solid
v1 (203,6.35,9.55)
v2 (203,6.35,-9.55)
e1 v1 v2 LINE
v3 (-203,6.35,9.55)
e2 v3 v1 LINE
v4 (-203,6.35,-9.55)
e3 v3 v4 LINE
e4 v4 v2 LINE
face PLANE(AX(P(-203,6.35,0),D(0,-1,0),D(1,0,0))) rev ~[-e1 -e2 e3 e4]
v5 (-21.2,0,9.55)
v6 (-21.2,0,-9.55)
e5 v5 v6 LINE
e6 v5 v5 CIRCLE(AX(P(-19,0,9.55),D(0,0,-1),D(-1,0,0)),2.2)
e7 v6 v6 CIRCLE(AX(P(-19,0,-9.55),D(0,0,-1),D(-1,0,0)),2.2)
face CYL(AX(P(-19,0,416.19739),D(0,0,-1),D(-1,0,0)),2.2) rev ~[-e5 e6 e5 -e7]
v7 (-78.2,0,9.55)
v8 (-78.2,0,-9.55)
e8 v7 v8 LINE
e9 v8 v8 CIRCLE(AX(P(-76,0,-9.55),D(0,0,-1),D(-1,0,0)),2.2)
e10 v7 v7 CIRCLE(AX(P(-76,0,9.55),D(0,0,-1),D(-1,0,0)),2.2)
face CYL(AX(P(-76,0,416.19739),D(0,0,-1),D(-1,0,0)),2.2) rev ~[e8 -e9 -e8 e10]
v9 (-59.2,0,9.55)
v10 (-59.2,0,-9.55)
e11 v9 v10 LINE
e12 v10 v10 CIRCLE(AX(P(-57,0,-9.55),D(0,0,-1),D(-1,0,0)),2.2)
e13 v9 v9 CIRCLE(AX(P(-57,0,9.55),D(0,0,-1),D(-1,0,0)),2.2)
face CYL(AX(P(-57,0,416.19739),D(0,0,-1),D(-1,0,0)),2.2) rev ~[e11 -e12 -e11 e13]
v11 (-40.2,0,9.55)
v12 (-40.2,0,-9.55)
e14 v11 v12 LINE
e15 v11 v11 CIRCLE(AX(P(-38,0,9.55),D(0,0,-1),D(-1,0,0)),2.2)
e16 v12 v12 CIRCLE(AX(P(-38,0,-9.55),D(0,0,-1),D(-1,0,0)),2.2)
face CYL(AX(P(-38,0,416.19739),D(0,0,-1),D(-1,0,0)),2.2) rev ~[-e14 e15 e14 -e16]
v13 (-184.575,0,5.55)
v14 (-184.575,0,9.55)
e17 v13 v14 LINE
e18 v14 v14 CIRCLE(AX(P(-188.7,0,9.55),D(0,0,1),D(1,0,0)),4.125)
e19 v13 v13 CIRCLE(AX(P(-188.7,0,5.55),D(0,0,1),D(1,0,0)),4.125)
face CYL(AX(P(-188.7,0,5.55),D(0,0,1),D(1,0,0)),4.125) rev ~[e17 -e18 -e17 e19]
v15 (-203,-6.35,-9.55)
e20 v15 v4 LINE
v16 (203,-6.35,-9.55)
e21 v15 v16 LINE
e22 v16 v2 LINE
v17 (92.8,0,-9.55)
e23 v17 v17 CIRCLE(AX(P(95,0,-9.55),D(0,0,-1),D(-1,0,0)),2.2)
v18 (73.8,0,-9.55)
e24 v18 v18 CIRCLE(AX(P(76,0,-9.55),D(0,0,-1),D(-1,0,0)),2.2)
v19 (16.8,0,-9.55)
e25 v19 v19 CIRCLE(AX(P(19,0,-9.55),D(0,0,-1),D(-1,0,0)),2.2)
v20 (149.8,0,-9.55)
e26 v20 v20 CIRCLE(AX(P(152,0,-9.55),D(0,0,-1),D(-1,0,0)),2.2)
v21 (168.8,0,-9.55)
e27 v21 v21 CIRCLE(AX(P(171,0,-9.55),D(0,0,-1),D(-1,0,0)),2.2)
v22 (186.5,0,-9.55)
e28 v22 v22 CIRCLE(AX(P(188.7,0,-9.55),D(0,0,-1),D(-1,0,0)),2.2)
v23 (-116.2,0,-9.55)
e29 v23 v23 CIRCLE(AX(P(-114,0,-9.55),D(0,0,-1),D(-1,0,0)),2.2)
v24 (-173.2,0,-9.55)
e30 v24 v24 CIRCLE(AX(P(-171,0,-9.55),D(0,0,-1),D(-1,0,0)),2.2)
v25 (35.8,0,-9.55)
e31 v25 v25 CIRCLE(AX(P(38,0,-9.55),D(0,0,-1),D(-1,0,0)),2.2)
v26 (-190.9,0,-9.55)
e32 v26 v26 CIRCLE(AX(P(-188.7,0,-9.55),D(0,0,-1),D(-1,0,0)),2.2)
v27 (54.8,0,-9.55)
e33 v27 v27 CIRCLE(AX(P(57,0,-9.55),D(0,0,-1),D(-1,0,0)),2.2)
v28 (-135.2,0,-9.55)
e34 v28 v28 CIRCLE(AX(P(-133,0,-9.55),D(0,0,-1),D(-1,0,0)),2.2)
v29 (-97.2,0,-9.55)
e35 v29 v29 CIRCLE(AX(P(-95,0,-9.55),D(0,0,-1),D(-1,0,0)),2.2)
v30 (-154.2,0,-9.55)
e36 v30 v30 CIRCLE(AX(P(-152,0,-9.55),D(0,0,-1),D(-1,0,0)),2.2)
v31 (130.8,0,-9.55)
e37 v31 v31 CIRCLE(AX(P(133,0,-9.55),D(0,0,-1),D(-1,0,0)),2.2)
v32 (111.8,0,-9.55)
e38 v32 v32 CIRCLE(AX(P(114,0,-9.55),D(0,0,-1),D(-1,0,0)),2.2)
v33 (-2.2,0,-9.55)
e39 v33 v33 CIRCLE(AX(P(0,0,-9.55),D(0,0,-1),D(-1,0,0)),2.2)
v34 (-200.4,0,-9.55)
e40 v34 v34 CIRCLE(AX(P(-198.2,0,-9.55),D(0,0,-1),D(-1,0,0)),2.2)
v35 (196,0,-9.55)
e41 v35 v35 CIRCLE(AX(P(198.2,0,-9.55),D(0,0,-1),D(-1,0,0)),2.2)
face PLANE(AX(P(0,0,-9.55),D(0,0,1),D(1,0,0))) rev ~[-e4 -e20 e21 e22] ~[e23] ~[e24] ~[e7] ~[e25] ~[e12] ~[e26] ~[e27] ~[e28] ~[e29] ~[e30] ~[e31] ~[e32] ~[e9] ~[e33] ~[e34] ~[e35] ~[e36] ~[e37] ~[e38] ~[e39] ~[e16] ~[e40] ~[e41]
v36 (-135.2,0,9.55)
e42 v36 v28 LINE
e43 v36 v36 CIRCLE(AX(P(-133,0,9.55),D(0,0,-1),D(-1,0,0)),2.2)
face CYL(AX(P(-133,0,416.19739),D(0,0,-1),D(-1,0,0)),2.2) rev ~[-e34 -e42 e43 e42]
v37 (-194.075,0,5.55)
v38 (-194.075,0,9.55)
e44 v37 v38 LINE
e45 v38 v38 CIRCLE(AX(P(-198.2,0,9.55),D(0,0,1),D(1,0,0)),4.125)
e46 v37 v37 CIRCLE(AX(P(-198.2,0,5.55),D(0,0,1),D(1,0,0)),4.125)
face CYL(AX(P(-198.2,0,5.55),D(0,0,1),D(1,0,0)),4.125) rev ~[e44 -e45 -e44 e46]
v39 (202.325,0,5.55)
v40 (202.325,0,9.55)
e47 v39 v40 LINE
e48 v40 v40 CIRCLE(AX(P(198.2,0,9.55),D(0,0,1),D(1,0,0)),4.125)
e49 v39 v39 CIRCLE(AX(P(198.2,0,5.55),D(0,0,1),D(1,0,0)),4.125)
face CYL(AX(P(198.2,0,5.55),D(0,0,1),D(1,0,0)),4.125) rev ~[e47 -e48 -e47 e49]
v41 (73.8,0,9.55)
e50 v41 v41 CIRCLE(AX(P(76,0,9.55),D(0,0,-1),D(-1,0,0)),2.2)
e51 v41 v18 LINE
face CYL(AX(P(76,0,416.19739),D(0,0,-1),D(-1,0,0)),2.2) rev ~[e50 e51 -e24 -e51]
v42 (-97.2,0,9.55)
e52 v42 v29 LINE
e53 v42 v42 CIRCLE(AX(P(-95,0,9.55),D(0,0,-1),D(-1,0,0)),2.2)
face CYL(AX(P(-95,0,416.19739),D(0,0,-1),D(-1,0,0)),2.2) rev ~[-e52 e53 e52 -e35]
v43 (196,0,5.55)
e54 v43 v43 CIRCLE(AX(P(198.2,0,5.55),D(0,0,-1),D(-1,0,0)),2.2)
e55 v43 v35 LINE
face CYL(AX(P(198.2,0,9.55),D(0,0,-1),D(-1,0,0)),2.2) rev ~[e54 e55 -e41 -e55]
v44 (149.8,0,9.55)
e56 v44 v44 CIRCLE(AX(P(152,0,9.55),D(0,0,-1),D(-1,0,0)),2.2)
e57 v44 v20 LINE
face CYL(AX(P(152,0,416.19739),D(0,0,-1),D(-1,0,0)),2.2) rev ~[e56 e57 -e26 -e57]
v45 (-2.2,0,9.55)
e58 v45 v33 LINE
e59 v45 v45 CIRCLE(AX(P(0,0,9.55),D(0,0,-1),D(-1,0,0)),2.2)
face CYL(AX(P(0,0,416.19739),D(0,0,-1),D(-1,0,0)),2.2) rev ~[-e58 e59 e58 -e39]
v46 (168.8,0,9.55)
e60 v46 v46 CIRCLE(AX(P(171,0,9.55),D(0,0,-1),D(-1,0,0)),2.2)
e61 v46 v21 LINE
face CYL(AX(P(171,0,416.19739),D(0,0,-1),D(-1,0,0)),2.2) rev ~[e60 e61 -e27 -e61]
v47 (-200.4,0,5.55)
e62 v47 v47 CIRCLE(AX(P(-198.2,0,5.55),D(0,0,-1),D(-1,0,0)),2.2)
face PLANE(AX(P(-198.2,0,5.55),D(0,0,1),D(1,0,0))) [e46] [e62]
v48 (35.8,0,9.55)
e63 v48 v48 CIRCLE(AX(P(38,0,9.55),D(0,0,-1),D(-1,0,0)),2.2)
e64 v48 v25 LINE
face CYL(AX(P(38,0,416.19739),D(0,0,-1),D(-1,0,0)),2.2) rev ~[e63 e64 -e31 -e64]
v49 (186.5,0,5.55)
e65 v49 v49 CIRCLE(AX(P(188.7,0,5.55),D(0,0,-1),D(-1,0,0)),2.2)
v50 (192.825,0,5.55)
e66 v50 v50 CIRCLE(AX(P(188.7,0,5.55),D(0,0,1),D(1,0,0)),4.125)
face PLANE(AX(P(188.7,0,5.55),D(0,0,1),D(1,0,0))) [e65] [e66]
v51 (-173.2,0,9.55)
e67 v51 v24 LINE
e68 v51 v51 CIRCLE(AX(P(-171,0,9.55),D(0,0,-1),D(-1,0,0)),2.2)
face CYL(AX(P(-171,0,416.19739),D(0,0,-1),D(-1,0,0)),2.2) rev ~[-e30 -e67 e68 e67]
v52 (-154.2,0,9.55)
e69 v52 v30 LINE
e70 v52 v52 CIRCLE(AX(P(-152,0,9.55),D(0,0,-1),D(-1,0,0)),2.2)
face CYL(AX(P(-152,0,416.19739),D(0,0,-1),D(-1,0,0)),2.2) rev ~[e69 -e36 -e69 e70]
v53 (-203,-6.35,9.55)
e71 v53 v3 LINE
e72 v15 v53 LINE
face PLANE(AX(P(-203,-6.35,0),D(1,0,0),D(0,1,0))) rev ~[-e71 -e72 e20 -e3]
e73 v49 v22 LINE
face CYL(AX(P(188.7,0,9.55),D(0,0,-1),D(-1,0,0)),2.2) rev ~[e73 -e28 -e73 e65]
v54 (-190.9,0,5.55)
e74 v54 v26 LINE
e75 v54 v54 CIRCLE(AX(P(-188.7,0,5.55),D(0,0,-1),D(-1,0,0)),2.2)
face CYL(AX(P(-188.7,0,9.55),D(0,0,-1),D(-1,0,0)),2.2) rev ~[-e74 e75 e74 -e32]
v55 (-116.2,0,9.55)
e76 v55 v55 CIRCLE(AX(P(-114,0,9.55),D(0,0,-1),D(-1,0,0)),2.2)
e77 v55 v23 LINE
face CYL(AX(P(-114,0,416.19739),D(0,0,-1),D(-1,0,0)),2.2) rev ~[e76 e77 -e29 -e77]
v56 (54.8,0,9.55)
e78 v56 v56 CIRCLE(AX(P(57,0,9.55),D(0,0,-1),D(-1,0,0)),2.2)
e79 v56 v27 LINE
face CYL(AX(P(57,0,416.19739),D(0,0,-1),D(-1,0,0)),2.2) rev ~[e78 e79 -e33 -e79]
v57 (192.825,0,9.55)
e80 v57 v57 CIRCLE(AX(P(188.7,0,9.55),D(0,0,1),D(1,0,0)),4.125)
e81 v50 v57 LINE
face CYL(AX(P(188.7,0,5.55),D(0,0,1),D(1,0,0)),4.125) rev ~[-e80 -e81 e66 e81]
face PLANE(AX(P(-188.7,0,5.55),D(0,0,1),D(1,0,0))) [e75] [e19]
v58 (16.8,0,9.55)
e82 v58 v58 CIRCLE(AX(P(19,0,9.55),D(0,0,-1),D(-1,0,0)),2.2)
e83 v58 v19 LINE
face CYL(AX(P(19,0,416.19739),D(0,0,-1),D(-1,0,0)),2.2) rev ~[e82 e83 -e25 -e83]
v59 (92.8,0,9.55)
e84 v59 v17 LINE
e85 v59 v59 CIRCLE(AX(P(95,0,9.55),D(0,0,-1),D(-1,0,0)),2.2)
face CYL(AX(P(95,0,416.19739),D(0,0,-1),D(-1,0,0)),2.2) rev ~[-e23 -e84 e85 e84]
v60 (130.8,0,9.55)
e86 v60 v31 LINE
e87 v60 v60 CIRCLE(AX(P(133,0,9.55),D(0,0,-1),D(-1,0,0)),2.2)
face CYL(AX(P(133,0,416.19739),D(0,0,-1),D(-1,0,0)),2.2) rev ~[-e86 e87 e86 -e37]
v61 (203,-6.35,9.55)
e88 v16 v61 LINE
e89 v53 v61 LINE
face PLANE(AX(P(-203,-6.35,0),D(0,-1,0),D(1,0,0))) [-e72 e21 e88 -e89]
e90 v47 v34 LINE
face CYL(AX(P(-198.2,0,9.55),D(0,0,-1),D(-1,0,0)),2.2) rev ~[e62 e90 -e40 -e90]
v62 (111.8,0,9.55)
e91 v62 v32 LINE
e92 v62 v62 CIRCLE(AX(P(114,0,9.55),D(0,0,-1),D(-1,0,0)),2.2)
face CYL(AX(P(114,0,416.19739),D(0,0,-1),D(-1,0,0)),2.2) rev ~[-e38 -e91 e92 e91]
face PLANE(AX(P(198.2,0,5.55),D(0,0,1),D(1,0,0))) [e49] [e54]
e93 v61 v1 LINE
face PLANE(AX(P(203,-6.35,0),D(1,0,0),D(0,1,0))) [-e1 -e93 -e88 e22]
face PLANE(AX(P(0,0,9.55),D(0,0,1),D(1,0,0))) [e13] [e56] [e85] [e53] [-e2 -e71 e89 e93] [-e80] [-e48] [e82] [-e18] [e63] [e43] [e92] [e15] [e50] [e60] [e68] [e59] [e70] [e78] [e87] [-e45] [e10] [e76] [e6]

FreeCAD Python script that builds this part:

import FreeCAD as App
import Part
import Sketcher
Q = App.Units.Quantity

doc = App.newDocument("Part")
body = doc.addObject("PartDesign::Body", "Body")

# Sketch on XY plane
sketch1 = body.newObject("Sketcher::SketchObject", "Sketch")
sketch1.AttachmentSupport = (doc.getObject("XY_Plane"), [""])
sketch1.MapMode = "FlatFace"
sketch1.addGeometry([
    Part.LineSegment(App.Vector(-203, 6.35, 0), App.Vector(-203, -6.35, 0)),
    Part.LineSegment(App.Vector(-203, -6.35, 0), App.Vector(203, -6.35, 0)),
    Part.LineSegment(App.Vector(203, -6.35, 0), App.Vector(203, 6.35, 0)),
    Part.LineSegment(App.Vector(203, 6.35, 0), App.Vector(-203, 6.35, 0)),
], False)
sketch1.addConstraint([
    Sketcher.Constraint("Coincident", 0, 2, 1, 1),
    Sketcher.Constraint("Coincident", 1, 2, 2, 1),
    Sketcher.Constraint("Coincident", 2, 2, 3, 1),
    Sketcher.Constraint("Coincident", 3, 2, 0, 1),
    Sketcher.Constraint("Vertical", 0),
    Sketcher.Constraint("Horizontal", 1),
    Sketcher.Constraint("Vertical", 2),
    Sketcher.Constraint("Horizontal", 3),
    Sketcher.Constraint("Symmetric", 0, 2, 2, 2, -1, 1),
    Sketcher.Constraint("DistanceX", 1, 1, 1, 2, Q("406 mm")),
    Sketcher.Constraint("DistanceY", 0, 2, 0, 1, Q("12.7 mm")),
])
pad1 = body.newObject("PartDesign::Pad", "Pad")
pad1.Profile = sketch1
pad1.Length = 19.1
pad1.Midplane = True

# Sketch on XY plane
sketch2 = body.newObject("Sketcher::SketchObject", "Sketch001")
sketch2.AttachmentSupport = (doc.getObject("XY_Plane"), [""])
sketch2.MapMode = "FlatFace"
sketch2.AttachmentOffset = App.Placement(App.Vector(0, 0, 9.55), App.Rotation())
sketch2.addGeometry([
    Part.Circle(App.Vector(-198.2, 0, 0), App.Vector(0, 0, 1), 2.2),
    Part.Circle(App.Vector(-188.7, 0, 0), App.Vector(0, 0, 1), 2.2),
    Part.Circle(App.Vector(188.7, 0, 0), App.Vector(0, 0, 1), 2.2),
    Part.Circle(App.Vector(198.2, 0, 0), App.Vector(0, 0, 1), 2.2),
], False)
sketch2.addConstraint([
    Sketcher.Constraint("Equal", 0, 1),
    Sketcher.Constraint("Equal", 1, 2),
    Sketcher.Constraint("Equal", 2, 3),
    Sketcher.Constraint("Symmetric", 1, 3, 2, 3, -1, 1),
    Sketcher.Constraint("Symmetric", 0, 3, 3, 3, -1, 1),
    Sketcher.Constraint("PointOnObject", 0, 3, -1),
    Sketcher.Constraint("PointOnObject", 1, 3, -1),
    Sketcher.Constraint("Diameter", 0, Q("4.4 mm")),
    Sketcher.Constraint("DistanceX", 0, 3, -1, 1, Q("198.2 mm")),
    Sketcher.Constraint("DistanceX", 1, 3, -1, 1, Q("188.7 mm")),
])
doc.recompute()
hole = body.newObject("PartDesign::Hole", "Hole")
hole.Profile = sketch2
hole.ThreadType = "None"
hole.Diameter = 4.4
hole.DepthType = "Dimension"
hole.Depth = 20
hole.DrillPoint = "Angled"
hole.DrillPointAngle = 118
hole.HoleCutType = "Counterbore"
hole.HoleCutDiameter = 8.25
hole.HoleCutDepth = 4

# Sketch on XY plane
sketch3 = body.newObject("Sketcher::SketchObject", "Sketch002")
sketch3.AttachmentSupport = (doc.getObject("XY_Plane"), [""])
sketch3.MapMode = "FlatFace"
sketch3.AttachmentOffset = App.Placement(App.Vector(0, 0, 9.55), App.Rotation())
sketch3.addGeometry([
    Part.Circle(App.Vector(-171, 0, 0), App.Vector(0, 0, 1), 2.2),  # 0
    Part.Circle(App.Vector(-152, 0, 0), App.Vector(0, 0, 1), 2.2),  # 1
    Part.Circle(App.Vector(-133, 0, 0), App.Vector(0, 0, 1), 2.2),  # 2
    Part.Circle(App.Vector(-114, 0, 0), App.Vector(0, 0, 1), 2.2),  # 3
    Part.Circle(App.Vector(-95, 0, 0), App.Vector(0, 0, 1), 2.2),  # 4
    Part.Circle(App.Vector(-57, 0, 0), App.Vector(0, 0, 1), 2.2),  # 5
    Part.Circle(App.Vector(-38, 0, 0), App.Vector(0, 0, 1), 2.2),  # 6
    Part.Circle(App.Vector(-76, 0, 0), App.Vector(0, 0, 1), 2.2),  # 7
    Part.Circle(App.Vector(-19, 0, 0), App.Vector(0, 0, 1), 2.2),  # 8
    Part.Circle(App.Vector(0, 0, 0), App.Vector(0, 0, 1), 2.2),  # 9
    Part.Circle(App.Vector(19, 0, 0), App.Vector(0, 0, 1), 2.2),  # 10
    Part.Circle(App.Vector(38, 0, 0), App.Vector(0, 0, 1), 2.2),  # 11
    Part.Circle(App.Vector(57, 0, 0), App.Vector(0, 0, 1), 2.2),  # 12
    Part.Circle(App.Vector(76, 0, 0), App.Vector(0, 0, 1), 2.2),  # 13
    Part.Circle(App.Vector(95, 0, 0), App.Vector(0, 0, 1), 2.2),  # 14
    Part.Circle(App.Vector(114, 0, 0), App.Vector(0, 0, 1), 2.2),  # 15
    Part.Circle(App.Vector(133, 0, 0), App.Vector(0, 0, 1), 2.2),  # 16
    Part.Circle(App.Vector(152, 0, 0), App.Vector(0, 0, 1), 2.2),  # 17
    Part.Circle(App.Vector(171, 0, 0), App.Vector(0, 0, 1), 2.2),  # 18
    Part.Circle(App.Vector(133, 0, 0), App.Vector(0, 0, 1), 2.2),  # 19
], False)
sketch3.addConstraint([
    Sketcher.Constraint("Coincident", 9, 3, -1, 1),
    Sketcher.Constraint("Coincident", 19, 3, 16, 3),
    Sketcher.Constraint("Equal", 0, 1),
    Sketcher.Constraint("Equal", 1, 2),
    Sketcher.Constraint("Equal", 2, 3),
    Sketcher.Constraint("Equal", 3, 4),
    Sketcher.Constraint("Equal", 4, 5),
    Sketcher.Constraint("Equal", 5, 6),
    Sketcher.Constraint("Equal", 6, 7),
    Sketcher.Constraint("Equal", 7, 8),
    Sketcher.Constraint("Equal", 8, 9),
    Sketcher.Constraint("Equal", 9, 10),
    Sketcher.Constraint("Equal", 10, 11),
    Sketcher.Constraint("Equal", 11, 12),
    Sketcher.Constraint("Equal", 12, 13),
    Sketcher.Constraint("Equal", 13, 14),
    Sketcher.Constraint("Equal", 14, 15),
    Sketcher.Constraint("Equal", 15, 16),
    Sketcher.Constraint("Equal", 16, 17),
    Sketcher.Constraint("Equal", 17, 18),
    Sketcher.Constraint("Equal", 18, 19),
    Sketcher.Constraint("Symmetric", 8, 3, 10, 3, -1, 1),
    Sketcher.Constraint("Symmetric", 6, 3, 11, 3, -1, 1),
    Sketcher.Constraint("Symmetric", 5, 3, 12, 3, -1, 1),
    Sketcher.Constraint("Symmetric", 7, 3, 13, 3, -1, 1),
    Sketcher.Constraint("Symmetric", 4, 3, 14, 3, -1, 1),
    Sketcher.Constraint("Symmetric", 3, 3, 15, 3, -1, 1),
    Sketcher.Constraint("Symmetric", 2, 3, 16, 3, -1, 1),
    Sketcher.Constraint("Symmetric", 1, 3, 17, 3, -1, 1),
    Sketcher.Constraint("Symmetric", 0, 3, 18, 3, -1, 1),
    Sketcher.Constraint("PointOnObject", 0, 3, -1),
    Sketcher.Constraint("PointOnObject", 1, 3, -1),
    Sketcher.Constraint("PointOnObject", 2, 3, -1),
    Sketcher.Constraint("PointOnObject", 3, 3, -1),
    Sketcher.Constraint("PointOnObject", 4, 3, -1),
    Sketcher.Constraint("PointOnObject", 5, 3, -1),
    Sketcher.Constraint("PointOnObject", 6, 3, -1),
    Sketcher.Constraint("PointOnObject", 7, 3, -1),
    Sketcher.Constraint("PointOnObject", 8, 3, -1),
    Sketcher.Constraint("Diameter", 0, Q("4.4 mm")),
    Sketcher.Constraint("DistanceX", 0, 3, -1, 1, Q("171 mm")),
    Sketcher.Constraint("DistanceX", 1, 3, -1, 1, Q("152 mm")),
    Sketcher.Constraint("DistanceX", 2, 3, -1, 1, Q("133 mm")),
    Sketcher.Constraint("DistanceX", 3, 3, -1, 1, Q("114 mm")),
    Sketcher.Constraint("DistanceX", 4, 3, -1, 1, Q("95 mm")),
    Sketcher.Constraint("DistanceX", 5, 3, -1, 1, Q("57 mm")),
    Sketcher.Constraint("DistanceX", 6, 3, -1, 1, Q("38 mm")),
    Sketcher.Constraint("DistanceX", 7, 3, -1, 1, Q("76 mm")),
    Sketcher.Constraint("DistanceX", 8, 3, -1, 1, Q("19 mm")),
])
doc.recompute()
hole2 = body.newObject("PartDesign::Hole", "Hole001")
hole2.Profile = sketch3
hole2.ThreadType = "None"
hole2.Diameter = 4.4
hole2.DepthType = "ThroughAll"

doc.recompute()
